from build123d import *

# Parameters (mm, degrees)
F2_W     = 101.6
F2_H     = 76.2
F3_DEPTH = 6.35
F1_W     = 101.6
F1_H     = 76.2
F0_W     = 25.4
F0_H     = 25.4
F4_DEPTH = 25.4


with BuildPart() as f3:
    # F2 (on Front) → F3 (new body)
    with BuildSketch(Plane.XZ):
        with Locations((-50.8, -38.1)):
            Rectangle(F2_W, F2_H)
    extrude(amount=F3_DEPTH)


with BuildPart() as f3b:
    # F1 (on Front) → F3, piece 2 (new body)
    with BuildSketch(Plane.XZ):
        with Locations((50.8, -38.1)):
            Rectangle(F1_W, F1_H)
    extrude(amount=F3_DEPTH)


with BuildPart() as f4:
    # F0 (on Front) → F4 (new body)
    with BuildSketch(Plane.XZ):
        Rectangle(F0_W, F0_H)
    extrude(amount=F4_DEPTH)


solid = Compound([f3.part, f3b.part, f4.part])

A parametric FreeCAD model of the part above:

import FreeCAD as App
import Part
import Sketcher
from FreeCAD import Vector
Q = App.Units.Quantity


def add_polygon(sketch, points):
    """Adds a closed chain of lines whose ends are joined by coincident constraints."""
    first, n = sketch.GeometryCount, len(points)
    for a, b in zip(points, points[1:] + points[:1]):
        sketch.addGeometry(Part.LineSegment(App.Vector(*a, 0), App.Vector(*b, 0)), False)
    for i in range(n):
        sketch.addConstraint(Sketcher.Constraint("Coincident", first + i, 2, first + (i + 1) % n, 1))

doc = App.newDocument("Part")
body = doc.addObject("PartDesign::Body", "Body")

sketch1 = body.newObject("Sketcher::SketchObject", "Sketch")
sketch1.AttachmentSupport = (doc.getObject("XZ_Plane"), [""])
sketch1.MapMode = "FlatFace"
add_polygon(sketch1, [(-102, 0), (-102, -76), (0, -76), (0, 0)])
sketch1.addConstraint([
    Sketcher.Constraint("Vertical", 0),
    Sketcher.Constraint("Horizontal", 1),
    Sketcher.Constraint("Vertical", 2),
    Sketcher.Constraint("Horizontal", 3),
    Sketcher.Constraint("Coincident", 2, 2, -1, 1),
    Sketcher.Constraint("DistanceX", 1, 1, 1, 2, Q("4 in")),
    Sketcher.Constraint("DistanceY", 0, 2, 0, 1, Q("3 in")),
])
pad1 = body.newObject("PartDesign::Pad", "Pad")
pad1.Profile = sketch1
pad1.Length = Q("0.25 in")
body2 = doc.addObject("PartDesign::Body", "Body001")

sketch2 = body2.newObject("Sketcher::SketchObject", "Sketch001")
sketch2.AttachmentSupport = (doc.getObject("XZ_Plane001"), [""])
sketch2.MapMode = "FlatFace"
add_polygon(sketch2, [(0, 0), (0, -76), (102, -76), (102, 0)])
sketch2.addConstraint([
    Sketcher.Constraint("Vertical", 0),
    Sketcher.Constraint("Horizontal", 1),
    Sketcher.Constraint("Vertical", 2),
    Sketcher.Constraint("Horizontal", 3),
    Sketcher.Constraint("Coincident", 3, 2, -1, 1),
    Sketcher.Constraint("DistanceX", 1, 1, 1, 2, Q("4 in")),
    Sketcher.Constraint("DistanceY", 0, 2, 0, 1, Q("3 in")),
])
pad2 = body2.newObject("PartDesign::Pad", "Pad001")
pad2.Profile = sketch2
pad2.Length = Q("0.25 in")
body3 = doc.addObject("PartDesign::Body", "Body002")

sketch3 = body3.newObject("Sketcher::SketchObject", "Sketch002")
sketch3.AttachmentSupport = (doc.getObject("XZ_Plane002"), [""])
sketch3.MapMode = "FlatFace"
add_polygon(sketch3, [(-13, 13), (-13, -13), (13, -13), (13, 13)])
sketch3.addConstraint([
    Sketcher.Constraint("Vertical", 0),
    Sketcher.Constraint("Horizontal", 1),
    Sketcher.Constraint("Vertical", 2),
    Sketcher.Constraint("Horizontal", 3),
    Sketcher.Constraint("Symmetric", 0, 2, 2, 2, -1, 1),
    Sketcher.Constraint("Equal", 3, 0),
    Sketcher.Constraint("DistanceX", 1, 1, 1, 2, Q("1 in")),
])
pad3 = body3.newObject("PartDesign::Pad", "Pad002")
pad3.Profile = sketch3
pad3.Length = Q("1 in")

doc.recompute()
